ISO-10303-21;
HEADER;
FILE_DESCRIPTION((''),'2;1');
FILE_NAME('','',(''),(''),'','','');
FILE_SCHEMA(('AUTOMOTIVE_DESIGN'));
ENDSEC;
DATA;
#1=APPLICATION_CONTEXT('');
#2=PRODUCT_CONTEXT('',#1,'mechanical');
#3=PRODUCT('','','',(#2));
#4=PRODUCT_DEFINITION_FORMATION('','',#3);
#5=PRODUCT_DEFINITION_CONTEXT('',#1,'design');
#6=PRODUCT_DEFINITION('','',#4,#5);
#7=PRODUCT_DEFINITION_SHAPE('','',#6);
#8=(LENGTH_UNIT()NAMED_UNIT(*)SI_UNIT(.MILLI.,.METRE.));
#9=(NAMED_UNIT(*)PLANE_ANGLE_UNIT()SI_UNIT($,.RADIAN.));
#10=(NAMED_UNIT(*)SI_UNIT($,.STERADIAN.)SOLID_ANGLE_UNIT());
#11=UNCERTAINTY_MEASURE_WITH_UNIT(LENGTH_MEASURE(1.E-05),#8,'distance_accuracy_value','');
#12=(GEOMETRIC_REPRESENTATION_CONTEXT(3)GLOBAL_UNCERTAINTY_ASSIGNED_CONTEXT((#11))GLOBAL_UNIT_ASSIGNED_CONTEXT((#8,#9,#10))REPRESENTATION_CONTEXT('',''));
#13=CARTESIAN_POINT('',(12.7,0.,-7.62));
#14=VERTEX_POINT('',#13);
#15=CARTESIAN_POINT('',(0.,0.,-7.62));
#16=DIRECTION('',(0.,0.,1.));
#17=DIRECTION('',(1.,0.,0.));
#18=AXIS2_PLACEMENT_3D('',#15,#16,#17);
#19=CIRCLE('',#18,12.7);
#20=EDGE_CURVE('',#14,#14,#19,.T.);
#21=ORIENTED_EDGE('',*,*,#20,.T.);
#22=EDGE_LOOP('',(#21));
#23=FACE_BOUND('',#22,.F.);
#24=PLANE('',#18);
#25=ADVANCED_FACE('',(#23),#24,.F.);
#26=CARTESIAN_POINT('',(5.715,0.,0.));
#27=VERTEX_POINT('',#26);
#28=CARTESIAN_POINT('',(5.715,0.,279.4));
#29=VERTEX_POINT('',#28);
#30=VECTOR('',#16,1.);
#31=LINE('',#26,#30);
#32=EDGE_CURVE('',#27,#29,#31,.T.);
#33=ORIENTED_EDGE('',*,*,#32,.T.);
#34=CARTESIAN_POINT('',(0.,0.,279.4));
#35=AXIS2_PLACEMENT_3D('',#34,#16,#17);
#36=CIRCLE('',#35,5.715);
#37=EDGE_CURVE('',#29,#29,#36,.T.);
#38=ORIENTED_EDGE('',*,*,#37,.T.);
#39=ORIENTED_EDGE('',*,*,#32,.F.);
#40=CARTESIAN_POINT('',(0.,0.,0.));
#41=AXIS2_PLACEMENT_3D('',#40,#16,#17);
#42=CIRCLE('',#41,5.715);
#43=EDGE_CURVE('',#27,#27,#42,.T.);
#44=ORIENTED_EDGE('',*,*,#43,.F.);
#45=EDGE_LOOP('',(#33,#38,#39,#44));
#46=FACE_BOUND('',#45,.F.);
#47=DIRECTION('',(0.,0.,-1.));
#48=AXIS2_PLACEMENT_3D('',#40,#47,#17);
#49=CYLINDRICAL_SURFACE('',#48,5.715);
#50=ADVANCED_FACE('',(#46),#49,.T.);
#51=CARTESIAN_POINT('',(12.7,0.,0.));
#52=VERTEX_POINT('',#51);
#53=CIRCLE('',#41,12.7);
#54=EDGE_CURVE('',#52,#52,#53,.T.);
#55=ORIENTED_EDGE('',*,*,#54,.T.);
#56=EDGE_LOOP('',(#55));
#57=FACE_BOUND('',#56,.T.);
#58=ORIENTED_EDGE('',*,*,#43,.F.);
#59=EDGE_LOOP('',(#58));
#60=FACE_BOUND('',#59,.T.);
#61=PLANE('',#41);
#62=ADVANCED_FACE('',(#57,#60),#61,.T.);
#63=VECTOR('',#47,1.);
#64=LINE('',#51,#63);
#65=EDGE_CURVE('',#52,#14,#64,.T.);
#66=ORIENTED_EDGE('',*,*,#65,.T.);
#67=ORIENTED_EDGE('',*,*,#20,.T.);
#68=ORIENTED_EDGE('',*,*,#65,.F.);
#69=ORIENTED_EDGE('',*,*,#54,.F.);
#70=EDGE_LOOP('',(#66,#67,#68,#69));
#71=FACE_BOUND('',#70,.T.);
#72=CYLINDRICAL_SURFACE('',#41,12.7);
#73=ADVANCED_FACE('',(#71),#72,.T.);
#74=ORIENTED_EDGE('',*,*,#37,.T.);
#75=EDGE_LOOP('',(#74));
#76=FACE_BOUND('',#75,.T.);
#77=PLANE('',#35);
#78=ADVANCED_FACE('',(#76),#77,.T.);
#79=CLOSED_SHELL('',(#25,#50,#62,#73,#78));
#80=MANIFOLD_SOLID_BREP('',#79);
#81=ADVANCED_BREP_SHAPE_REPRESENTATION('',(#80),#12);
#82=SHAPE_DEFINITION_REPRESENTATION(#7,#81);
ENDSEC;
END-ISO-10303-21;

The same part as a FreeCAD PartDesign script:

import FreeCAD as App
import Part
import Sketcher

V = App.Vector
Q = App.Units.Quantity

doc = App.newDocument("Part")
body = doc.addObject("PartDesign::Body", "Body")

# Sketch on XY plane
sketch1 = body.newObject("Sketcher::SketchObject", "Sketch")
sketch1.AttachmentSupport = (doc.getObject("XY_Plane"), [""])
sketch1.MapMode = "FlatFace"
sketch1.addGeometry(Part.Circle(V(0, 0, 0), V(0, 0, 1), 6), False)
sketch1.addConstraint([
    Sketcher.Constraint("Coincident", 0, 3, -1, 1),
    Sketcher.Constraint("Diameter", 0, Q("0.45 in")),
])
pad1 = body.newObject("PartDesign::Pad", "Pad")
pad1.Profile = sketch1
pad1.Length = Q("11 in")

# Sketch on XY plane
sketch2 = body.newObject("Sketcher::SketchObject", "Sketch001")
sketch2.AttachmentSupport = (doc.getObject("XY_Plane"), [""])
sketch2.MapMode = "FlatFace"
sketch2.addGeometry(Part.Circle(V(0, 0, 0), V(0, 0, 1), 13), False)
sketch2.addConstraint([
    Sketcher.Constraint("Coincident", 0, 3, -1, 1),
    Sketcher.Constraint("Diameter", 0, Q("1 in")),
])
pad2 = body.newObject("PartDesign::Pad", "Pad001")
pad2.Profile = sketch2
pad2.Length = Q("0.3 in")
pad2.Reversed = True

doc.recompute()
